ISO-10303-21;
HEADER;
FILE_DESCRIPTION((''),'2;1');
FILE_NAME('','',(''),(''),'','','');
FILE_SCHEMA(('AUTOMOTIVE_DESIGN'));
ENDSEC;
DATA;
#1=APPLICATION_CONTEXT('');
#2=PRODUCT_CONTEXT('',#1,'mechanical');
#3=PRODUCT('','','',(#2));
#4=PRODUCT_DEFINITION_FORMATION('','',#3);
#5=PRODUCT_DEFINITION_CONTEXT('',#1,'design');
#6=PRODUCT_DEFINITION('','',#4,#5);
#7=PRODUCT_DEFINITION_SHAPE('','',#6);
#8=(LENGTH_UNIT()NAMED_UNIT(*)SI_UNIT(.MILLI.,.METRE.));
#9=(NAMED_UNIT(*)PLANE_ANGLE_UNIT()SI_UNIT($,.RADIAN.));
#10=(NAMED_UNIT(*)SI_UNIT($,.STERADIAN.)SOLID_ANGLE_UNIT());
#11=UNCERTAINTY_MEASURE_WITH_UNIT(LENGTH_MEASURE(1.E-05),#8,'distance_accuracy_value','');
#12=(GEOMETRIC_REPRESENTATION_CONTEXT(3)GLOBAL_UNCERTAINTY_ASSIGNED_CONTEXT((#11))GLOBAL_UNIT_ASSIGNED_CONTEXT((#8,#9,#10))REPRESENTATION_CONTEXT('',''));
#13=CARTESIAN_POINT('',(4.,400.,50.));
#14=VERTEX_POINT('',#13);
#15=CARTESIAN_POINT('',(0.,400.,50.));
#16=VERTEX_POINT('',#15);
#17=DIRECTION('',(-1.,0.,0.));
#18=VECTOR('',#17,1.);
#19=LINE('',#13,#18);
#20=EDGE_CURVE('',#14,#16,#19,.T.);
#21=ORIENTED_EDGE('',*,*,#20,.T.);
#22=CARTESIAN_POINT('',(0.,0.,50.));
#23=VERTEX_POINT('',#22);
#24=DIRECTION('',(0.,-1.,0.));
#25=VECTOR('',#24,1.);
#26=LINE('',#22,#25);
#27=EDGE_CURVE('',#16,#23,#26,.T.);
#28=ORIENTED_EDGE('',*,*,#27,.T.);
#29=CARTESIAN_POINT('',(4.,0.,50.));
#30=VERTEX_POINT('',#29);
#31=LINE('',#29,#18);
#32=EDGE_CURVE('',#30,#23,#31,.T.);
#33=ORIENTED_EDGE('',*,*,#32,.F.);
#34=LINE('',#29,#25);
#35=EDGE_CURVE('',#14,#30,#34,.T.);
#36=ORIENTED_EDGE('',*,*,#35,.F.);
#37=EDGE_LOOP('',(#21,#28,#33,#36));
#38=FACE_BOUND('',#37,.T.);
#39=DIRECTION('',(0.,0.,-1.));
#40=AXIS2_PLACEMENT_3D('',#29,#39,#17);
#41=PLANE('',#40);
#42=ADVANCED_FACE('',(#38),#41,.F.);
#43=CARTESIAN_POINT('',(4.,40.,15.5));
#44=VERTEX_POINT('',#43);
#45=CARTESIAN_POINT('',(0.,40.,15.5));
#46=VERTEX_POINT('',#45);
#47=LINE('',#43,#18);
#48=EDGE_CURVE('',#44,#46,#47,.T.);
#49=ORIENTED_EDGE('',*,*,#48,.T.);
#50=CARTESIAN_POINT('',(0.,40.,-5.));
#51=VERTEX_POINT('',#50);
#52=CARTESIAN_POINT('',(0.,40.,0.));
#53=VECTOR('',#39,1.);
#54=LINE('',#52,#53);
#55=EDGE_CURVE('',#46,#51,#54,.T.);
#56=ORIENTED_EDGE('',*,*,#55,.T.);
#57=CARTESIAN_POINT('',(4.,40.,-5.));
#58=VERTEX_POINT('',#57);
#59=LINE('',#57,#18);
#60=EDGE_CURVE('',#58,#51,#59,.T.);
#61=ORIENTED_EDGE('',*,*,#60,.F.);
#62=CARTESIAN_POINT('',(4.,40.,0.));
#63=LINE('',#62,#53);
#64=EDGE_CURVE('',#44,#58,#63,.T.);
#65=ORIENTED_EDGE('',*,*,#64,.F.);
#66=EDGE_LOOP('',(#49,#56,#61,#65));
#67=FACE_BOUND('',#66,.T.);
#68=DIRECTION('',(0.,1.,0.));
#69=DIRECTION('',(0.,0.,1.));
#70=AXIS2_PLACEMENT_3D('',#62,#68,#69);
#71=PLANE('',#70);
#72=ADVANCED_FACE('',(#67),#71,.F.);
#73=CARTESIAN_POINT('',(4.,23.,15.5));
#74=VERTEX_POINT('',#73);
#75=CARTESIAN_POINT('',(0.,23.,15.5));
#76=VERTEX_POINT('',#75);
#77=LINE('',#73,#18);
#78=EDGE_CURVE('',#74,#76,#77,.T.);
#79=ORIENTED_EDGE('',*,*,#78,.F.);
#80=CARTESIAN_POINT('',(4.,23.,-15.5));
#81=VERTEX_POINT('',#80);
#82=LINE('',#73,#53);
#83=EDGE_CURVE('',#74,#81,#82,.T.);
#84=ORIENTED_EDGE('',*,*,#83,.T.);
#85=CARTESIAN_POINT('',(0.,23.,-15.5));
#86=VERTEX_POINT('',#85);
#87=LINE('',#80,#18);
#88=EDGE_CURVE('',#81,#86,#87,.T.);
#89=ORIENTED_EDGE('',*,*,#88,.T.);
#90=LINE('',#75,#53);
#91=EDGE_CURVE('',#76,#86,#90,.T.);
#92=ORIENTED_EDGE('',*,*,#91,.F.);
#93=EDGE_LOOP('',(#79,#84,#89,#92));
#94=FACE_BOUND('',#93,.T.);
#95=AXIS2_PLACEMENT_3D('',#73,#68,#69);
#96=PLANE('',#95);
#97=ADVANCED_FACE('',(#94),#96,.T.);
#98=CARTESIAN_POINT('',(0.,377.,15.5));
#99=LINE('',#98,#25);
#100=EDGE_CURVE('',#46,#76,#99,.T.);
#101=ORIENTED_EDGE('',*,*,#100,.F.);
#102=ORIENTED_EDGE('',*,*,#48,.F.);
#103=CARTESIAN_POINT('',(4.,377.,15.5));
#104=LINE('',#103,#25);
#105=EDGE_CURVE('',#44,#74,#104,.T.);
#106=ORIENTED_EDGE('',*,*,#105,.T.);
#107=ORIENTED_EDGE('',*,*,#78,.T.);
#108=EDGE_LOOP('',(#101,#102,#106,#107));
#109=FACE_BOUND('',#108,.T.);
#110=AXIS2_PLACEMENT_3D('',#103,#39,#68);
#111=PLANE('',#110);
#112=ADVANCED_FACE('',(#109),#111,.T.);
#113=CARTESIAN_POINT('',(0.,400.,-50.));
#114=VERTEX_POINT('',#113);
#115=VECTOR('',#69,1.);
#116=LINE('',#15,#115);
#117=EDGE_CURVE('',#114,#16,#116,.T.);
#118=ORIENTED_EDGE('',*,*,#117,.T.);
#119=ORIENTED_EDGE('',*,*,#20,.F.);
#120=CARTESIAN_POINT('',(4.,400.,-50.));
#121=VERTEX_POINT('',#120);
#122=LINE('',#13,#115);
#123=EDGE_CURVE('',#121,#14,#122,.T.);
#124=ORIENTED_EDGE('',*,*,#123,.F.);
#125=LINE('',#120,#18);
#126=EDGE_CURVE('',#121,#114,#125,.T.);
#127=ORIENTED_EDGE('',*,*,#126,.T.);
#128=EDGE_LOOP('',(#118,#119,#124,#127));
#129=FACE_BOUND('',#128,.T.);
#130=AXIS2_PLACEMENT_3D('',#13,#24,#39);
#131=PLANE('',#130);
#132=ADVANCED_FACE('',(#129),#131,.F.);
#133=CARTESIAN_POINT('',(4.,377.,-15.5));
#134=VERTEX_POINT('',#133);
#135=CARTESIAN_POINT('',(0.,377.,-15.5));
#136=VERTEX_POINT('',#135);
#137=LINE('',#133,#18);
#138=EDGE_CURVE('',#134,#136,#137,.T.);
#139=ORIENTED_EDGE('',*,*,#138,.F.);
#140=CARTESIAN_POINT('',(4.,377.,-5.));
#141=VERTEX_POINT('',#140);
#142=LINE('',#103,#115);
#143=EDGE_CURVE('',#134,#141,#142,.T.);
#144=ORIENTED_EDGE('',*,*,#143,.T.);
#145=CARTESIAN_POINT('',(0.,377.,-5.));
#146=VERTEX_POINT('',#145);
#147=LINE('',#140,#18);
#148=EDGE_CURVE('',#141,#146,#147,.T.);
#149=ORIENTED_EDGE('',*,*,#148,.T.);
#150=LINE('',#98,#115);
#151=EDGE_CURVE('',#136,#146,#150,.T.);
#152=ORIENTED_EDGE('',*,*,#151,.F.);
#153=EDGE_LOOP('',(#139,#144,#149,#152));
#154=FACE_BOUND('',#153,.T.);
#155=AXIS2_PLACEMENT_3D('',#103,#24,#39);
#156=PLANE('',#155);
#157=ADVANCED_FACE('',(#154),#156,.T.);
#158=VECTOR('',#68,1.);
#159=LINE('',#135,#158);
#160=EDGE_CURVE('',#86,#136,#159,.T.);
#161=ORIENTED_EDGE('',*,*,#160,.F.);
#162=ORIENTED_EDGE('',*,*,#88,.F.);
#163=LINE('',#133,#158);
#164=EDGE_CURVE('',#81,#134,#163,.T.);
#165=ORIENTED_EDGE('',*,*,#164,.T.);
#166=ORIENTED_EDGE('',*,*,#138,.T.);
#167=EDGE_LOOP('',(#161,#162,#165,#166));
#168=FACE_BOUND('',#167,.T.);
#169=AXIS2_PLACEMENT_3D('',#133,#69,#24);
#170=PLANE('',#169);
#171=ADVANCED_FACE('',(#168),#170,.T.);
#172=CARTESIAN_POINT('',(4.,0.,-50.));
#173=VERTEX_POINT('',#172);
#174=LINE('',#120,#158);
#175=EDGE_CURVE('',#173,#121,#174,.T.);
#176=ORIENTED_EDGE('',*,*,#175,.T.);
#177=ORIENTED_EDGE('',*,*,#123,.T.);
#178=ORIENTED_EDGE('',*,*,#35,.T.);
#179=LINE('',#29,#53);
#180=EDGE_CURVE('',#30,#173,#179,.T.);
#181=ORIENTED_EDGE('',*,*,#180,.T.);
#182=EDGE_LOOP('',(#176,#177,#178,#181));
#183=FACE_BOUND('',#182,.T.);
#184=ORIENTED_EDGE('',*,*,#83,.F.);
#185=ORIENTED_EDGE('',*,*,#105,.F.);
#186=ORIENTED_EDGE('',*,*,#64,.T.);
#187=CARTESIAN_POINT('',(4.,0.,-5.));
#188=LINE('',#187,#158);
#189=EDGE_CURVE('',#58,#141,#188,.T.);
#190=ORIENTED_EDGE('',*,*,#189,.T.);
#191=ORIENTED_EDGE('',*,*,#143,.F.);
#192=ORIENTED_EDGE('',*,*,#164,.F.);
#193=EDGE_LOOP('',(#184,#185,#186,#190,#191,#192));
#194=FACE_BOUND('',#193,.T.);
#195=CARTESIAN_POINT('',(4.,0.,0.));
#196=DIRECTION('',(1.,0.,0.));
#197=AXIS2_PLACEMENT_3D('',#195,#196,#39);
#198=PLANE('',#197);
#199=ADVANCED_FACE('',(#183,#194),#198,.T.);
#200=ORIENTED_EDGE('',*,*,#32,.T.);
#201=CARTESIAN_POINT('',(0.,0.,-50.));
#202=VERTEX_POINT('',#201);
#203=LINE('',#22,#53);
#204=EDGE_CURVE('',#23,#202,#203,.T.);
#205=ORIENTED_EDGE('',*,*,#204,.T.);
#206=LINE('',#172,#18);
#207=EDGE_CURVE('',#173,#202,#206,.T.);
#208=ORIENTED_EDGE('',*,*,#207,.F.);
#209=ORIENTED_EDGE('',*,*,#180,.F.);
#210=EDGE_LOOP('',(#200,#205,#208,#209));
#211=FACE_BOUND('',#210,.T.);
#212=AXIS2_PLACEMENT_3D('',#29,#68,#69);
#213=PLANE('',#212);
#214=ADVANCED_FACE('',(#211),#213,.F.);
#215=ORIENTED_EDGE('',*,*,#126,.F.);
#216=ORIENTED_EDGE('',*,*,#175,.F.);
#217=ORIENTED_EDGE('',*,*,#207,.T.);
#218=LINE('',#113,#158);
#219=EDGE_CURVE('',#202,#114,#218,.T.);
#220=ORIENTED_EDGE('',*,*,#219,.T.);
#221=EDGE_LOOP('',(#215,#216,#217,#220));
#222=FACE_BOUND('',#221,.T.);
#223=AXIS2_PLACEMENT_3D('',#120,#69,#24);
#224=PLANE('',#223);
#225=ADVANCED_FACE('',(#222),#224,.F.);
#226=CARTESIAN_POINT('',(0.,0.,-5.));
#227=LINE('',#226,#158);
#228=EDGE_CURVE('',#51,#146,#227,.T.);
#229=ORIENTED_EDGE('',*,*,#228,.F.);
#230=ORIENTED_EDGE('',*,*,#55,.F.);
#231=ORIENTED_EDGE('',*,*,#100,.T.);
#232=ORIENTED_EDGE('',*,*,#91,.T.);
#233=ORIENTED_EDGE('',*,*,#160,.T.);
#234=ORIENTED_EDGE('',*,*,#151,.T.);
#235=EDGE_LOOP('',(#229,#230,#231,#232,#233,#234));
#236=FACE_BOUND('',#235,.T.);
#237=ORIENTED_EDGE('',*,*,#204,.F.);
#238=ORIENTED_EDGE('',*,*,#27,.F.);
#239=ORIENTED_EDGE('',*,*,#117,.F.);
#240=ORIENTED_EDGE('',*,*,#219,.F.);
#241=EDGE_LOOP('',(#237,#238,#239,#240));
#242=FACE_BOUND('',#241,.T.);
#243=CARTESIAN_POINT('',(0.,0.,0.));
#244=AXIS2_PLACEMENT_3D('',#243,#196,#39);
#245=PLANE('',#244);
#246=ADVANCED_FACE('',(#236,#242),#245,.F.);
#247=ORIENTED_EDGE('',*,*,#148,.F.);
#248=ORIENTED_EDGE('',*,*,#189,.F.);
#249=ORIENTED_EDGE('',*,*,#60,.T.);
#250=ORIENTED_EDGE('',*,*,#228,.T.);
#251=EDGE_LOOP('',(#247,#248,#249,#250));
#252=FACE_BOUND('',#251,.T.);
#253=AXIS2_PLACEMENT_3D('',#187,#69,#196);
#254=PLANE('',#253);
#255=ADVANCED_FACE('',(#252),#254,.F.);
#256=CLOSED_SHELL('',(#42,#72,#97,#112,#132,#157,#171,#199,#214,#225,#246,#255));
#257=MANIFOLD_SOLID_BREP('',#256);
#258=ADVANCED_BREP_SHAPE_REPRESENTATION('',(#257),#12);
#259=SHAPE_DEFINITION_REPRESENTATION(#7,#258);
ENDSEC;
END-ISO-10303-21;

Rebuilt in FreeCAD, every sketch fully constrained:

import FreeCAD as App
import Part
import Sketcher
from FreeCAD import Vector

doc = App.newDocument("Part")
body = doc.addObject("PartDesign::Body", "Body")

# Sketch on YZ plane
sketch1 = doc.addObject("Sketcher::SketchObject", "Sketch")
body.addObject(sketch1)
sketch1.AttachmentSupport = (doc.YZ_Plane, [""])
sketch1.MapMode = "FlatFace"
sketch1.addGeometry(Part.LineSegment(Vector(400, 50, 0), Vector(0, 50, 0)), False)
sketch1.addGeometry(Part.LineSegment(Vector(0, 50, 0), Vector(0, -50, 0)), False)
sketch1.addGeometry(Part.LineSegment(Vector(0, -50, 0), Vector(400, -50, 0)), False)
sketch1.addGeometry(Part.LineSegment(Vector(400, -50, 0), Vector(400, 50, 0)), False)
sketch1.addGeometry(Part.LineSegment(Vector(23, -16, 0), Vector(23, 16, 0)), False)
sketch1.addGeometry(Part.LineSegment(Vector(23, 16, 0), Vector(377, 16, 0)), False)
sketch1.addGeometry(Part.LineSegment(Vector(377, 16, 0), Vector(377, -16, 0)), False)
sketch1.addGeometry(Part.LineSegment(Vector(377, -16, 0), Vector(23, -16, 0)), False)
sketch1.addConstraint(Sketcher.Constraint("Coincident", 0, 2, 1, 1))
sketch1.addConstraint(Sketcher.Constraint("Coincident", 1, 2, 2, 1))
sketch1.addConstraint(Sketcher.Constraint("Coincident", 2, 2, 3, 1))
sketch1.addConstraint(Sketcher.Constraint("Coincident", 3, 2, 0, 1))
sketch1.addConstraint(Sketcher.Constraint("Coincident", 4, 2, 5, 1))
sketch1.addConstraint(Sketcher.Constraint("Coincident", 5, 2, 6, 1))
sketch1.addConstraint(Sketcher.Constraint("Coincident", 6, 2, 7, 1))
sketch1.addConstraint(Sketcher.Constraint("Coincident", 7, 2, 4, 1))
sketch1.addConstraint(Sketcher.Constraint("Horizontal", 0))
sketch1.addConstraint(Sketcher.Constraint("Vertical", 1))
sketch1.addConstraint(Sketcher.Constraint("Horizontal", 2))
sketch1.addConstraint(Sketcher.Constraint("Vertical", 3))
sketch1.addConstraint(Sketcher.Constraint("Vertical", 4))
sketch1.addConstraint(Sketcher.Constraint("Horizontal", 5))
sketch1.addConstraint(Sketcher.Constraint("Vertical", 6))
sketch1.addConstraint(Sketcher.Constraint("Horizontal", 7))
sketch1.addConstraint(Sketcher.Constraint("Symmetric", 0, 2, 1, 2, -1, 1))
sketch1.addConstraint(Sketcher.Constraint("DistanceX", 0, 2, 0, 1, 400.0))
sketch1.addConstraint(Sketcher.Constraint("DistanceX", 5, 1, 5, 2, 354.0))
sketch1.addConstraint(Sketcher.Constraint("DistanceY", 1, 2, 1, 1, 100.0))
sketch1.addConstraint(Sketcher.Constraint("DistanceY", 4, 1, 4, 2, 31.0))
sketch1.addConstraint(Sketcher.Constraint("DistanceX", -1, 1, 4, 2, 23.0))
sketch1.addConstraint(Sketcher.Constraint("DistanceY", -1, 1, 4, 2, 15.5))
pad1 = doc.addObject("PartDesign::Pad", "Pad")
body.addObject(pad1)
pad1.Profile = sketch1
pad1.Length = 4

# Sketch on YZ plane
sketch2 = doc.addObject("Sketcher::SketchObject", "Sketch001")
body.addObject(sketch2)
sketch2.AttachmentSupport = (doc.YZ_Plane, [""])
sketch2.MapMode = "FlatFace"
sketch2.addGeometry(Part.LineSegment(Vector(377, -5, 0), Vector(40, -5, 0)), False)
sketch2.addGeometry(Part.LineSegment(Vector(40, -5, 0), Vector(40, 16, 0)), False)
sketch2.addGeometry(Part.LineSegment(Vector(40, 16, 0), Vector(377, 16, 0)), False)
sketch2.addGeometry(Part.LineSegment(Vector(377, 16, 0), Vector(377, -5, 0)), False)
sketch2.addConstraint(Sketcher.Constraint("Coincident", 0, 2, 1, 1))
sketch2.addConstraint(Sketcher.Constraint("Coincident", 1, 2, 2, 1))
sketch2.addConstraint(Sketcher.Constraint("Coincident", 2, 2, 3, 1))
sketch2.addConstraint(Sketcher.Constraint("Coincident", 3, 2, 0, 1))
sketch2.addConstraint(Sketcher.Constraint("Horizontal", 0))
sketch2.addConstraint(Sketcher.Constraint("Vertical", 1))
sketch2.addConstraint(Sketcher.Constraint("Horizontal", 2))
sketch2.addConstraint(Sketcher.Constraint("Vertical", 3))
sketch2.addConstraint(Sketcher.Constraint("DistanceX", 0, 2, 0, 1, 337.0))
sketch2.addConstraint(Sketcher.Constraint("DistanceY", 1, 1, 1, 2, 20.5))
sketch2.addConstraint(Sketcher.Constraint("DistanceX", -1, 1, 0, 2, 40.0))
sketch2.addConstraint(Sketcher.Constraint("DistanceY", 0, 2, -1, 1, 5.0))
pad2 = doc.addObject("PartDesign::Pad", "Pad001")
body.addObject(pad2)
pad2.Profile = sketch2
pad2.Length = 4

doc.recompute()
